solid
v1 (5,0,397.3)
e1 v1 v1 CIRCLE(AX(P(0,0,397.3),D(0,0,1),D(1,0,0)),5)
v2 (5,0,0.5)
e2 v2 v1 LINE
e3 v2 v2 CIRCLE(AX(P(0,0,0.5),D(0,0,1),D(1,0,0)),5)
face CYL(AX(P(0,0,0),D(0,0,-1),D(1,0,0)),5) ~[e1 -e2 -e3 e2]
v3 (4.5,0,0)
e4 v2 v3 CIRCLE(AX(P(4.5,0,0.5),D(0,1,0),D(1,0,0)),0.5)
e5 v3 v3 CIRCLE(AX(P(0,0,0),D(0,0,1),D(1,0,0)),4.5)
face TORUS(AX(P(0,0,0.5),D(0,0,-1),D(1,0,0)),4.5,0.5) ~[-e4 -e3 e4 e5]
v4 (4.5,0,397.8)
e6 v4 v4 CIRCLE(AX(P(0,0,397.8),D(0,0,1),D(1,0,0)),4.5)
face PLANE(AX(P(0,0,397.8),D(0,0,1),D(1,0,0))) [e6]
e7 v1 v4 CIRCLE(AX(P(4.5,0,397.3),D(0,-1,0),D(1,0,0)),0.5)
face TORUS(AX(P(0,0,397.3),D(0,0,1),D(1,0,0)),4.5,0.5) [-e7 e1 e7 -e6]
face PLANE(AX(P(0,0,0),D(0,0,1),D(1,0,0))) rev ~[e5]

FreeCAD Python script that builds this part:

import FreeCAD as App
import Part
import Sketcher
Q = App.Units.Quantity


def edges_at(feature, points):
    """Names of the edges that pass closest to the given points."""
    edges = feature.Shape.Edges
    near = lambda p: min(range(len(edges)), key=lambda i: edges[i].distToShape(Part.Vertex(*p))[0])
    return sorted({f"Edge{near(p) + 1}" for p in points})

doc = App.newDocument("Part")
params = doc.addObject("Spreadsheet::Sheet", "Params")
for row, (alias, value) in enumerate([
    ("sketch1_diameter", "10 mm"),
    ("pad1_length", "397.8 mm"),
    ("fillet_radius", "0.5 mm"),
], start=1):
    params.set(f"A{row}", alias)
    params.set(f"B{row}", "=" + value)
    params.setAlias(f"B{row}", alias)

body = doc.addObject("PartDesign::Body", "Body")

sketch1 = doc.addObject("Sketcher::SketchObject", "Sketch")
body.addObject(sketch1)
sketch1.AttachmentSupport = (doc.XY_Plane, [""])
sketch1.MapMode = "FlatFace"
sketch1.addGeometry(Part.Circle(App.Vector(0, 0, 0), App.Vector(0, 0, 1), 5), False)
sketch1.addConstraint([
    Sketcher.Constraint("Coincident", 0, 3, -1, 1),
    Sketcher.Constraint("Diameter", 0, Q("10 mm")),
])
sketch1.setExpression("Constraints[1]", "Params.sketch1_diameter")
pad1 = doc.addObject("PartDesign::Pad", "Pad")
body.addObject(pad1)
pad1.Profile = sketch1
pad1.setExpression("Length", "Params.pad1_length")
doc.recompute()

fillet = doc.addObject("PartDesign::Fillet", "Fillet")
body.addObject(fillet)
fillet.Base = (pad1, edges_at(pad1, [(-5, 0, 397.8), (-5, 0, 0)]))
fillet.setExpression("Radius", "Params.fillet_radius")

doc.recompute()
